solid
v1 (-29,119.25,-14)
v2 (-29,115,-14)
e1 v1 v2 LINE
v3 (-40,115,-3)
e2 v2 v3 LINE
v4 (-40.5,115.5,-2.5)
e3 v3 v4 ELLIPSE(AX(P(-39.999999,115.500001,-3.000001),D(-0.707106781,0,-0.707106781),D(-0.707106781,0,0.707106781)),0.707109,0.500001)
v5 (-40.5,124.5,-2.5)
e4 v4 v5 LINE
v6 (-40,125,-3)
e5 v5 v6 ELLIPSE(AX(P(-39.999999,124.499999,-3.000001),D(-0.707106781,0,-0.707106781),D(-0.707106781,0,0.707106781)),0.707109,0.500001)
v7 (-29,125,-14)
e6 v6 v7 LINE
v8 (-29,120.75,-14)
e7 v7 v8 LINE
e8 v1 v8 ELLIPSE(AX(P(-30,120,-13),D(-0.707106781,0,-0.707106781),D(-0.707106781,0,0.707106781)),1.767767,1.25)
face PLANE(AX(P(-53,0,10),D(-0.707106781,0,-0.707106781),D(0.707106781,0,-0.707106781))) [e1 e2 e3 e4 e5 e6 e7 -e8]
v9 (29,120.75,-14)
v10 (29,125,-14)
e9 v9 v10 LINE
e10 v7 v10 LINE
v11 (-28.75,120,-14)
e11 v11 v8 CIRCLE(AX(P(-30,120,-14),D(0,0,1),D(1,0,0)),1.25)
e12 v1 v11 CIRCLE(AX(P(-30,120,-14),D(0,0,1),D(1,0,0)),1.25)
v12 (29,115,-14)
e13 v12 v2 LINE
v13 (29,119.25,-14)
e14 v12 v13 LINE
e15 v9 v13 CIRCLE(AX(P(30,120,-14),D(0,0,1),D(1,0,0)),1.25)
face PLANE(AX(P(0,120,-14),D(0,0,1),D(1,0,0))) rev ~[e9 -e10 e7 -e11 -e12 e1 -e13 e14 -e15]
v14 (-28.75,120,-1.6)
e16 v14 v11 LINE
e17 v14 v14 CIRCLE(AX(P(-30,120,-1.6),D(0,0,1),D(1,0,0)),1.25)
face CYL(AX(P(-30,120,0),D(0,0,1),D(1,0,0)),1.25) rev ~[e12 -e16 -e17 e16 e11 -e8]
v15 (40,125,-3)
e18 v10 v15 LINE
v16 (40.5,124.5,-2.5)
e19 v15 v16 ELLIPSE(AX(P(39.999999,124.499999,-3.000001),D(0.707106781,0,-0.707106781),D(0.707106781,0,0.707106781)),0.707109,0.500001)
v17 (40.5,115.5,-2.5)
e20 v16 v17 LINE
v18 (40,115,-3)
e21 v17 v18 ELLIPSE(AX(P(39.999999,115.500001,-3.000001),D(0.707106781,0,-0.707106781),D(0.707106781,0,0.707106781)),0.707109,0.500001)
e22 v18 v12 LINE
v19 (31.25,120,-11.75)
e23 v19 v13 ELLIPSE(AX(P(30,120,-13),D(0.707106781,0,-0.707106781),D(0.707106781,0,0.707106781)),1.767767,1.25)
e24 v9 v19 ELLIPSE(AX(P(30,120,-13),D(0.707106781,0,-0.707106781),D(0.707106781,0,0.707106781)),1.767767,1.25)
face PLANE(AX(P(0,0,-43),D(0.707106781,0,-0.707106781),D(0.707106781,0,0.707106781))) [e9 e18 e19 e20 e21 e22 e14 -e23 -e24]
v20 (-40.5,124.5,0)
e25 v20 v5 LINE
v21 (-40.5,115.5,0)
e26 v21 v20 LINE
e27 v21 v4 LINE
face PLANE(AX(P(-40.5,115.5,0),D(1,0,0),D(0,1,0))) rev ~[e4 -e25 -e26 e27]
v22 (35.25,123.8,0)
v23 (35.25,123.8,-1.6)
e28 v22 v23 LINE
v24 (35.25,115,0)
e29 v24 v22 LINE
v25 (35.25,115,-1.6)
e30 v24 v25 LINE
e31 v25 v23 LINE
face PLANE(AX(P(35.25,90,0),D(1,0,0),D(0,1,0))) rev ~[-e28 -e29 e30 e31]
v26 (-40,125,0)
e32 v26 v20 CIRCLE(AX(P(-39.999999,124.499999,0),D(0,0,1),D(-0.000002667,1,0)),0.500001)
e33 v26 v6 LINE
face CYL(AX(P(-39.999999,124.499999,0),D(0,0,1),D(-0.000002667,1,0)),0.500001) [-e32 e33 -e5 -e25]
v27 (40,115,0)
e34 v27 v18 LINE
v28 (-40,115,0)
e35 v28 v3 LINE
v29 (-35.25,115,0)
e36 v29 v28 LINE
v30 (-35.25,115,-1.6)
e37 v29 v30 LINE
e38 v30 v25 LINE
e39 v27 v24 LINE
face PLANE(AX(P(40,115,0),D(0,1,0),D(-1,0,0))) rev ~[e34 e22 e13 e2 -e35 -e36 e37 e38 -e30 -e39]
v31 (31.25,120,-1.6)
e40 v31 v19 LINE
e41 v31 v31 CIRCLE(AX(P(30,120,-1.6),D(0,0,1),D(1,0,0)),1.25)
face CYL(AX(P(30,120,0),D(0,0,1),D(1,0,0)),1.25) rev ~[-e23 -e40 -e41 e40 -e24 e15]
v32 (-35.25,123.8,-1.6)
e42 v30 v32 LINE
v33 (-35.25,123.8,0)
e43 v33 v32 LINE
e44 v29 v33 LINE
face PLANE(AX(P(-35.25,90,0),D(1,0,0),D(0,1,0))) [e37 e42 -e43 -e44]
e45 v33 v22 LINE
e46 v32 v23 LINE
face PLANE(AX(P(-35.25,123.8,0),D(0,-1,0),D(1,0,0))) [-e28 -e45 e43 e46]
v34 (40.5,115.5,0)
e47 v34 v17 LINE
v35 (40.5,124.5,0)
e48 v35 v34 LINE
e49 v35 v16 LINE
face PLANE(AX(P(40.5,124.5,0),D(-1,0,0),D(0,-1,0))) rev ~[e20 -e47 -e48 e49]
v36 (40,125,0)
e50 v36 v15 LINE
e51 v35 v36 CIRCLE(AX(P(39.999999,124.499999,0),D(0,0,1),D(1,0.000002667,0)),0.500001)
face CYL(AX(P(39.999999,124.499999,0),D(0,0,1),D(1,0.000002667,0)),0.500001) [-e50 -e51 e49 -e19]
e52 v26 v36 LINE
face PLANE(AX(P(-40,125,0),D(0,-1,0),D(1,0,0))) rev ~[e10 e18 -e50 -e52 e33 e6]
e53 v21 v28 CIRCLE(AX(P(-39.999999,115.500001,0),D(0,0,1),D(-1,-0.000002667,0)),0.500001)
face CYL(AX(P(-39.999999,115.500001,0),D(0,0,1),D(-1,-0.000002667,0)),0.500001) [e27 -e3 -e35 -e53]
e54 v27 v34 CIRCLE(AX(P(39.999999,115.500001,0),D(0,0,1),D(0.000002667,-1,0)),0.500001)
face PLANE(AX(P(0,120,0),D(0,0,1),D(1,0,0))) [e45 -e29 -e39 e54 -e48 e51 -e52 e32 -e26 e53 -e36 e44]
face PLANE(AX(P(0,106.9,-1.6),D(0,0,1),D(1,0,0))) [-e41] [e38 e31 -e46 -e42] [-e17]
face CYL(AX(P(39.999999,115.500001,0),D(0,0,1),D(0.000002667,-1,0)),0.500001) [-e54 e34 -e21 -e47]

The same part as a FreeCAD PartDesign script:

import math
import FreeCAD as App
import Part
import Sketcher

doc = App.newDocument("Part")
params = doc.addObject("Spreadsheet::Sheet", "Params")
for row, (alias, value) in enumerate([
    ("sketch1_diameter", "2.5 mm"),
    ("sketch1_radius", "0.500001 mm"),
    ("sketch1_width", "80 mm"),
    ("sketch1_height", "9 mm"),
    ("pad1_length", "14 mm"),
    ("sketch2_width", "70.5 mm"),
    ("sketch2_height", "33.8 mm"),
    ("pocket1_length", "1.6 mm"),
    ("sketch3_width", "106 mm"),
    ("sketch3_height", "70 mm"),
], start=1):
    params.set(f"A{row}", alias)
    params.set(f"B{row}", "=" + value)
    params.setAlias(f"B{row}", alias)

body = doc.addObject("PartDesign::Body", "Body")

# Sketch on XY plane
sketch1 = body.newObject("Sketcher::SketchObject", "Sketch")
sketch1.AttachmentSupport = (doc.getObject("XY_Plane"), [""])
sketch1.MapMode = "FlatFace"
sketch1.addGeometry([
    Part.ArcOfCircle(Part.Circle(App.Vector(-39.999999, 124.499999, 0), App.Vector(0, 0, 1), 0.500001), math.radians(90.000153), math.radians(179.999847)),  # 0
    Part.LineSegment(App.Vector(-40.5, 124.5, 0), App.Vector(-40.5, 115.5, 0)),  # 1
    Part.ArcOfCircle(Part.Circle(App.Vector(-39.999999, 115.500001, 0), App.Vector(0, 0, 1), 0.500001), math.radians(-179.999847), math.radians(-90.000153)),  # 2
    Part.LineSegment(App.Vector(-40, 115, 0), App.Vector(40, 115, 0)),  # 3
    Part.ArcOfCircle(Part.Circle(App.Vector(39.999999, 115.500001, 0), App.Vector(0, 0, 1), 0.500001), math.radians(-89.999847), math.radians(-0.000153)),  # 4
    Part.LineSegment(App.Vector(40.5, 115.5, 0), App.Vector(40.5, 124.5, 0)),  # 5
    Part.ArcOfCircle(Part.Circle(App.Vector(39.999999, 124.499999, 0), App.Vector(0, 0, 1), 0.500001), math.radians(0.000153), math.radians(89.999847)),  # 6
    Part.LineSegment(App.Vector(40, 125, 0), App.Vector(-40, 125, 0)),  # 7
    Part.Circle(App.Vector(-30, 120, 0), App.Vector(0, 0, 1), 1.25),  # 8
    Part.Circle(App.Vector(30, 120, 0), App.Vector(0, 0, 1), 1.25),  # 9
], False)
sketch1.addConstraint([
    Sketcher.Constraint("Coincident", 0, 2, 1, 1),
    Sketcher.Constraint("Coincident", 1, 2, 2, 1),
    Sketcher.Constraint("Coincident", 2, 2, 3, 1),
    Sketcher.Constraint("Coincident", 3, 2, 4, 1),
    Sketcher.Constraint("Coincident", 4, 2, 5, 1),
    Sketcher.Constraint("Coincident", 5, 2, 6, 1),
    Sketcher.Constraint("Coincident", 6, 2, 7, 1),
    Sketcher.Constraint("Coincident", 7, 2, 0, 1),
    Sketcher.Constraint("Vertical", 1),
    Sketcher.Constraint("Horizontal", 3),
    Sketcher.Constraint("Vertical", 5),
    Sketcher.Constraint("Horizontal", 7),
    Sketcher.Constraint("Equal", 0, 2),
    Sketcher.Constraint("Equal", 2, 4),
    Sketcher.Constraint("Equal", 4, 6),
    Sketcher.Constraint("Equal", 8, 9),
    Sketcher.Constraint("Symmetric", 8, 3, 9, 3, -2),
    Sketcher.Constraint("Symmetric", 1, 2, 4, 2, -2),
    Sketcher.Constraint("Horizontal", 6, 3, 0, 2),
    Sketcher.Constraint("Horizontal", 4, 3, 1, 2),
    Sketcher.Constraint("Horizontal", 0, 2, 5, 2),
    Sketcher.Constraint("Vertical", 0, 3, 2, 2),
    Sketcher.Constraint("Vertical", 6, 3, 3, 2),
    Sketcher.Constraint("Vertical", 3, 2, 6, 2),
    Sketcher.Constraint("Vertical", 2, 2, 7, 2),
    Sketcher.Constraint("Diameter", 8, 2.5),
    Sketcher.Constraint("Radius", 0, 0.500001),
    Sketcher.Constraint("DistanceX", 3, 1, 3, 2, 80.0),
    Sketcher.Constraint("DistanceY", 1, 2, 1, 1, 9.0),
    Sketcher.Constraint("DistanceX", 8, 3, -1, 1, 30.0),
    Sketcher.Constraint("DistanceY", -1, 1, 8, 3, 120.0),
    Sketcher.Constraint("DistanceY", -1, 1, 2, 2, 115.0),
])
sketch1.setExpression("Constraints[25]", "Params.sketch1_diameter")
sketch1.setExpression("Constraints[26]", "Params.sketch1_radius")
sketch1.setExpression("Constraints[27]", "Params.sketch1_width")
sketch1.setExpression("Constraints[28]", "Params.sketch1_height")
pad1 = body.newObject("PartDesign::Pad", "Pad")
pad1.Profile = sketch1
pad1.setExpression("Length", "Params.pad1_length")
pad1.Reversed = True

# Sketch on XY plane
sketch2 = body.newObject("Sketcher::SketchObject", "Sketch001")
sketch2.AttachmentSupport = (doc.getObject("XY_Plane"), [""])
sketch2.MapMode = "FlatFace"
sketch2.addGeometry([
    Part.LineSegment(App.Vector(-35.25, 123.8, 0), App.Vector(-35.25, 90, 0)),
    Part.LineSegment(App.Vector(-35.25, 90, 0), App.Vector(35.25, 90, 0)),
    Part.LineSegment(App.Vector(35.25, 90, 0), App.Vector(35.25, 123.8, 0)),
    Part.LineSegment(App.Vector(35.25, 123.8, 0), App.Vector(-35.25, 123.8, 0)),
], False)
sketch2.addConstraint([
    Sketcher.Constraint("Coincident", 0, 2, 1, 1),
    Sketcher.Constraint("Coincident", 1, 2, 2, 1),
    Sketcher.Constraint("Coincident", 2, 2, 3, 1),
    Sketcher.Constraint("Coincident", 3, 2, 0, 1),
    Sketcher.Constraint("Vertical", 0),
    Sketcher.Constraint("Horizontal", 1),
    Sketcher.Constraint("Vertical", 2),
    Sketcher.Constraint("Horizontal", 3),
    Sketcher.Constraint("DistanceX", 1, 1, 1, 2, 70.5),
    Sketcher.Constraint("DistanceY", 0, 2, 0, 1, 33.8),
    Sketcher.Constraint("DistanceY", -1, 1, 0, 2, 90.0),
    Sketcher.Constraint("DistanceX", 0, 2, -1, 1, 35.25),
])
sketch2.setExpression("Constraints[8]", "Params.sketch2_width")
sketch2.setExpression("Constraints[9]", "Params.sketch2_height")
pocket1 = body.newObject("PartDesign::Pocket", "Pocket")
pocket1.Profile = sketch2
pocket1.setExpression("Length", "Params.pocket1_length")

# Sketch on XZ plane
sketch3 = body.newObject("Sketcher::SketchObject", "Sketch002")
sketch3.AttachmentSupport = (doc.getObject("XZ_Plane"), [""])
sketch3.MapMode = "FlatFace"
sketch3.addGeometry([
    Part.LineSegment(App.Vector(0, -43, 0), App.Vector(-53, 10, 0)),  # 0
    Part.LineSegment(App.Vector(-53, 10, 0), App.Vector(-53, -60, 0)),  # 1
    Part.LineSegment(App.Vector(-53, -60, 0), App.Vector(53, -60, 0)),  # 2
    Part.LineSegment(App.Vector(53, -60, 0), App.Vector(53, 10, 0)),  # 3
    Part.LineSegment(App.Vector(53, 10, 0), App.Vector(0, -43, 0)),  # 4
], False)
sketch3.addConstraint([
    Sketcher.Constraint("Coincident", 0, 2, 1, 1),
    Sketcher.Constraint("Coincident", 1, 2, 2, 1),
    Sketcher.Constraint("Coincident", 2, 2, 3, 1),
    Sketcher.Constraint("Coincident", 3, 2, 4, 1),
    Sketcher.Constraint("Coincident", 4, 2, 0, 1),
    Sketcher.Constraint("Vertical", 1),
    Sketcher.Constraint("Horizontal", 2),
    Sketcher.Constraint("Vertical", 3),
    Sketcher.Constraint("Symmetric", 0, 2, 3, 2, -2),
    Sketcher.Constraint("PointOnObject", 4, 2, -2),
    Sketcher.Constraint("Perpendicular", 0, 4),
    Sketcher.Constraint("DistanceX", 2, 1, 2, 2, 106.0),
    Sketcher.Constraint("DistanceY", 1, 2, 1, 1, 70.0),
    Sketcher.Constraint("DistanceY", -1, 1, 0, 2, 10.0),
])
sketch3.setExpression("Constraints[11]", "Params.sketch3_width")
sketch3.setExpression("Constraints[12]", "Params.sketch3_height")
pocket2 = body.newObject("PartDesign::Pocket", "Pocket001")
pocket2.Profile = sketch3
pocket2.Type = "ThroughAll"

doc.recompute()
